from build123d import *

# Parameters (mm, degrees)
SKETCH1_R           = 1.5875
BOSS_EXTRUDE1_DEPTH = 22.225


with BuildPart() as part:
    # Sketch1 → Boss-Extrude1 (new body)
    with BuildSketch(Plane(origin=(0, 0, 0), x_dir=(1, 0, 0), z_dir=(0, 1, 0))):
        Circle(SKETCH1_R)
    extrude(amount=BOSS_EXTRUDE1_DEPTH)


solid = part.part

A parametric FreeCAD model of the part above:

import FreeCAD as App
import Part
import Sketcher

V = App.Vector
Q = App.Units.Quantity

doc = App.newDocument("Part")
body = doc.addObject("PartDesign::Body", "Body")

sketch1 = doc.addObject("Sketcher::SketchObject", "Sketch")
body.addObject(sketch1)
sketch1.AttachmentSupport = (doc.XZ_Plane, [""])
sketch1.MapMode = "FlatFace"
sketch1.addGeometry(Part.Circle(V(0, 0, 0), V(0, 0, 1), 1.6), False)
sketch1.addConstraint([
    Sketcher.Constraint("Coincident", 0, 3, -1, 1),
    Sketcher.Constraint("Diameter", 0, Q("0.125 in")),
])
pad1 = doc.addObject("PartDesign::Pad", "Pad")
body.addObject(pad1)
pad1.Profile = sketch1
pad1.Length = Q("0.875 in")
pad1.Reversed = True

doc.recompute()
